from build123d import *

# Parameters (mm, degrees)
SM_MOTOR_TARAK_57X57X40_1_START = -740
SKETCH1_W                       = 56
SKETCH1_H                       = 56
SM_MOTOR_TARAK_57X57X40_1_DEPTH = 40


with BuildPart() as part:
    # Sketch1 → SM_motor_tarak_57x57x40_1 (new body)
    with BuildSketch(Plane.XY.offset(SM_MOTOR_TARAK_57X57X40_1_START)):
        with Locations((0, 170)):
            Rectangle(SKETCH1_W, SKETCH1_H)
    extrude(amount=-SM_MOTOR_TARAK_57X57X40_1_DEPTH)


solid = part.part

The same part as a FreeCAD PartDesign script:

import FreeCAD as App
import Part
import Sketcher


def add_polygon(sketch, points):
    """Adds a closed chain of lines whose ends are joined by coincident constraints."""
    first, n = sketch.GeometryCount, len(points)
    for a, b in zip(points, points[1:] + points[:1]):
        sketch.addGeometry(Part.LineSegment(App.Vector(*a, 0), App.Vector(*b, 0)), False)
    for i in range(n):
        sketch.addConstraint(Sketcher.Constraint("Coincident", first + i, 2, first + (i + 1) % n, 1))

doc = App.newDocument("Part")
params = doc.addObject("Spreadsheet::Sheet", "Params")
for row, (alias, value) in enumerate([
    ("sketch1_width", "56 mm"),
    ("pad1_length", "40 mm"),
], start=1):
    params.set(f"A{row}", alias)
    params.set(f"B{row}", "=" + value)
    params.setAlias(f"B{row}", alias)

body = doc.addObject("PartDesign::Body", "Body")

# Sketch on XY plane
sketch1 = body.newObject("Sketcher::SketchObject", "Sketch")
sketch1.AttachmentSupport = (doc.getObject("XY_Plane"), [""])
sketch1.MapMode = "FlatFace"
sketch1.AttachmentOffset = App.Placement(App.Vector(0, 0, -740), App.Rotation())
add_polygon(sketch1, [(-28, 198), (-28, 142), (28, 142), (28, 198)])  # lines 0-3
sketch1.addConstraint([
    Sketcher.Constraint("Vertical", 0),
    Sketcher.Constraint("Horizontal", 1),
    Sketcher.Constraint("Vertical", 2),
    Sketcher.Constraint("Horizontal", 3),
    Sketcher.Constraint("Equal", 3, 0),
    Sketcher.Constraint("DistanceX", 1, 1, 1, 2, 56.0),
    Sketcher.Constraint("DistanceX", 0, 2, -1, 1, 28.0),
    Sketcher.Constraint("DistanceY", -1, 1, 0, 2, 142.0),
])
sketch1.setExpression("Constraints[9]", "Params.sketch1_width")
pad1 = body.newObject("PartDesign::Pad", "Pad")
pad1.Profile = sketch1
pad1.setExpression("Length", "Params.pad1_length")
pad1.Reversed = True

doc.recompute()
